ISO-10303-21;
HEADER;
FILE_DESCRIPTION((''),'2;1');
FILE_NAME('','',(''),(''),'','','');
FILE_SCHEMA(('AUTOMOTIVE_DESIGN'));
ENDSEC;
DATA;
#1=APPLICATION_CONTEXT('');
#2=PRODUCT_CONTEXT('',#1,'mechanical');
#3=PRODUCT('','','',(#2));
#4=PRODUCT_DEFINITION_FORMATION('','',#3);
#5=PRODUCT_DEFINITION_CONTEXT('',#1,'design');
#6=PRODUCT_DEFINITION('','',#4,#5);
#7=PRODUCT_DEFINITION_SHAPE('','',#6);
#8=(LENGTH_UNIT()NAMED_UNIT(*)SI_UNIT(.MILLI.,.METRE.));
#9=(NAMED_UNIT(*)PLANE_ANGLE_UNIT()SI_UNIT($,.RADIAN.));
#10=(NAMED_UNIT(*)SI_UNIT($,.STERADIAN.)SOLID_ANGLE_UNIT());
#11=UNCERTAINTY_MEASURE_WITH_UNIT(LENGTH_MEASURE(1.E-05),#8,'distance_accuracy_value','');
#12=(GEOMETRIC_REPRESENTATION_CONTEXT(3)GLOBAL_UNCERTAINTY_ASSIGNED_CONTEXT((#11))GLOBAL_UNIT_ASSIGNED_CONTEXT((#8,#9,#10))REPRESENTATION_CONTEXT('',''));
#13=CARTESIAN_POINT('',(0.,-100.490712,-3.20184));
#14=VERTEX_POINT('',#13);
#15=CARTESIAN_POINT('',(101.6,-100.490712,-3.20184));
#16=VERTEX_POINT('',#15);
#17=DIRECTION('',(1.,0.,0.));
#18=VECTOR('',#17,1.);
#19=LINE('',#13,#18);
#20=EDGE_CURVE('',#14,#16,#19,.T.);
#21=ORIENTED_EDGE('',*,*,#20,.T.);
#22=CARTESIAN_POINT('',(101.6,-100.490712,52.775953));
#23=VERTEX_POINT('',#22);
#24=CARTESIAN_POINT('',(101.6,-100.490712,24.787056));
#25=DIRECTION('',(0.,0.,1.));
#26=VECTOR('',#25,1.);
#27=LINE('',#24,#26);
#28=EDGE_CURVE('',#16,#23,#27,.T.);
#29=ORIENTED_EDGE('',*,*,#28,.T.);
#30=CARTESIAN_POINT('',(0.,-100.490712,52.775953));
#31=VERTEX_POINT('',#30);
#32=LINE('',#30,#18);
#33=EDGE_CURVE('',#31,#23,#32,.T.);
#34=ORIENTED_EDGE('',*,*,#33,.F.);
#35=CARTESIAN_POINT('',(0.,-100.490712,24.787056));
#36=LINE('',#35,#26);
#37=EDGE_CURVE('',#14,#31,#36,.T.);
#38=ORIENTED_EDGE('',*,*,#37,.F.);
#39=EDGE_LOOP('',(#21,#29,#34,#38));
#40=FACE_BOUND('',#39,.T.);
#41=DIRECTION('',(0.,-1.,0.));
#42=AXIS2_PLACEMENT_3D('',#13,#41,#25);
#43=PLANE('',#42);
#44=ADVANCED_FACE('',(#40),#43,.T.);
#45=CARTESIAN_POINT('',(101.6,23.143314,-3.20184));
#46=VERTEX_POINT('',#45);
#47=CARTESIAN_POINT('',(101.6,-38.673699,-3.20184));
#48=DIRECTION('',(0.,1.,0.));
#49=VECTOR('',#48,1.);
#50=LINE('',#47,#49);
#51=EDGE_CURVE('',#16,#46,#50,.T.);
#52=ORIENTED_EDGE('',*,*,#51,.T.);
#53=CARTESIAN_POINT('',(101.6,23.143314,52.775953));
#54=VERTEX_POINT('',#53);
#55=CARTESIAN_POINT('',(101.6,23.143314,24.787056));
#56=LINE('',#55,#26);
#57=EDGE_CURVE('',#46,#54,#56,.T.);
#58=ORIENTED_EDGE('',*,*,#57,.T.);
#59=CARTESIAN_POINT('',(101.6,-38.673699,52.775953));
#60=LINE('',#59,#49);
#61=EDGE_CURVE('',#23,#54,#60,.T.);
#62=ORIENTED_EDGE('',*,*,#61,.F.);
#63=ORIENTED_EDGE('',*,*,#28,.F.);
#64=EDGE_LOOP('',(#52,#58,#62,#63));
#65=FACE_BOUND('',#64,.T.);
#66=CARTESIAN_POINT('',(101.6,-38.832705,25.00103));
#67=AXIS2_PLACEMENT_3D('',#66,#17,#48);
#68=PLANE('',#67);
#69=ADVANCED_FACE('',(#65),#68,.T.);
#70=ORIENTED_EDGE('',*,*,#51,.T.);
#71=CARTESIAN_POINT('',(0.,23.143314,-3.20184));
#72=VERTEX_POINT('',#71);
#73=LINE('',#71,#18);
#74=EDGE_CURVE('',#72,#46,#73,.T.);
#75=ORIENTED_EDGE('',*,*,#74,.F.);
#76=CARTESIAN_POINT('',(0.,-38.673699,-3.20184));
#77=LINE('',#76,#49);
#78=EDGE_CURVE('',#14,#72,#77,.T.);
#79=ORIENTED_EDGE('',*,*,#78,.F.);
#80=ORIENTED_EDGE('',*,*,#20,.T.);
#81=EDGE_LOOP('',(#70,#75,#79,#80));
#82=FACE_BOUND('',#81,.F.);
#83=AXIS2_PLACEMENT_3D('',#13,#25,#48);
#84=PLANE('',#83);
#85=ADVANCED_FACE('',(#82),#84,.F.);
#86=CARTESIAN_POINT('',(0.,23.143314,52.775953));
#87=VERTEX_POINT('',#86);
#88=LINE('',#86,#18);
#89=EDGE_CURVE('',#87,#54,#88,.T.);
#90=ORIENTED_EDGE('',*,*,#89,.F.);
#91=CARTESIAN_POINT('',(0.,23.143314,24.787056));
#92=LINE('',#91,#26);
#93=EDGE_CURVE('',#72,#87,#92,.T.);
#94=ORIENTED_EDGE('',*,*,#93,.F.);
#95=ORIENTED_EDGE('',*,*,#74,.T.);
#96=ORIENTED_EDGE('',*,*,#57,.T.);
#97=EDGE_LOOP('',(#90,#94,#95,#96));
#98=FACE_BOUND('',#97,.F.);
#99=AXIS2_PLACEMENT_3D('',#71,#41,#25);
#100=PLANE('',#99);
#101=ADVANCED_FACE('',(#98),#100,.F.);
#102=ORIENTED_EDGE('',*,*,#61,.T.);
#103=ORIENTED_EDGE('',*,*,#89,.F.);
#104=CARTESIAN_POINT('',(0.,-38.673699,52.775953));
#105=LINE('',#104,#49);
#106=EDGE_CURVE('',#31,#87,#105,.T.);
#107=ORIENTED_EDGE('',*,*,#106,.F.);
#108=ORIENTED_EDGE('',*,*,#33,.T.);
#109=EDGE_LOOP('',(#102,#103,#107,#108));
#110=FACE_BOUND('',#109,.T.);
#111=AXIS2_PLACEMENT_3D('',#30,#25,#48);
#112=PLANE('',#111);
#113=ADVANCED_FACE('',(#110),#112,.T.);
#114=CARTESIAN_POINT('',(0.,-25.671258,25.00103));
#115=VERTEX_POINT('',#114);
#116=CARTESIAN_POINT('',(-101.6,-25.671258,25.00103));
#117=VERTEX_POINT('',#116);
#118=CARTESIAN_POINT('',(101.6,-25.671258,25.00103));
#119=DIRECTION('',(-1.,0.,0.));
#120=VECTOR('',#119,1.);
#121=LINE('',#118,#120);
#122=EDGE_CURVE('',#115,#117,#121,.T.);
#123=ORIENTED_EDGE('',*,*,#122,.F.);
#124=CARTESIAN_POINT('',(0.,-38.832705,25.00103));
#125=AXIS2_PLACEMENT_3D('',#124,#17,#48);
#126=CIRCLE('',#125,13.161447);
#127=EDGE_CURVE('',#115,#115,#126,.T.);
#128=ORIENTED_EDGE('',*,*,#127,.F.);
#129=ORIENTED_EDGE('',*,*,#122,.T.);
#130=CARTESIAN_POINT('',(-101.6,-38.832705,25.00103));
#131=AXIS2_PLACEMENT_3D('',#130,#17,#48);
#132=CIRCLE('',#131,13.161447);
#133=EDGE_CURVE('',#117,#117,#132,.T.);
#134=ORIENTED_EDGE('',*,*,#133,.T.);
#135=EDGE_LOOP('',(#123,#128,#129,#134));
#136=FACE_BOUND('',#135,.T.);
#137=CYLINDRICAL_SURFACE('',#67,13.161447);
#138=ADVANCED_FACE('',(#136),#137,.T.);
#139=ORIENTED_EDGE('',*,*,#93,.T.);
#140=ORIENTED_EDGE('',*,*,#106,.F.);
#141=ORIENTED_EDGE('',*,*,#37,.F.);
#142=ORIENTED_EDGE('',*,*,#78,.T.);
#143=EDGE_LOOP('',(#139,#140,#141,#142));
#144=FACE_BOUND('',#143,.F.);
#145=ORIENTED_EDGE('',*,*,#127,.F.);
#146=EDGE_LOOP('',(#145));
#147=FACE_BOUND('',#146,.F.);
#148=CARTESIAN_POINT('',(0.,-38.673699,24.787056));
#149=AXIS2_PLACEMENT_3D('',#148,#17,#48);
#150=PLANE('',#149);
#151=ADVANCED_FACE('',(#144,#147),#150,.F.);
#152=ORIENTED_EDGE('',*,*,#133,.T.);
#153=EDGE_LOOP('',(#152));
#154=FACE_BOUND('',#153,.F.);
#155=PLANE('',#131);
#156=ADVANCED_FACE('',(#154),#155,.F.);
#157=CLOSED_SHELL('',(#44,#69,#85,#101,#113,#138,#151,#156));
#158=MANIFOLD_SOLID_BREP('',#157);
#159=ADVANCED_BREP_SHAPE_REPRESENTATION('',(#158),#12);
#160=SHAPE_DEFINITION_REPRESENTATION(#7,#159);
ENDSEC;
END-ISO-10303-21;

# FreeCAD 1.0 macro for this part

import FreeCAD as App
import Part
import Sketcher
Q = App.Units.Quantity

doc = App.newDocument("Part")
body = doc.addObject("PartDesign::Body", "Body")

# Sketch on YZ plane
sketch1 = body.newObject("Sketcher::SketchObject", "Sketch")
sketch1.AttachmentSupport = (doc.getObject("YZ_Plane"), [""])
sketch1.MapMode = "FlatFace"
sketch1.addGeometry([
    Part.LineSegment(App.Vector(-100.490712, 52.775953, 0), App.Vector(-100.490712, -3.20184, 0)),
    Part.LineSegment(App.Vector(-100.490712, -3.20184, 0), App.Vector(23.143314, -3.20184, 0)),
    Part.LineSegment(App.Vector(23.143314, -3.20184, 0), App.Vector(23.143314, 52.775953, 0)),
    Part.LineSegment(App.Vector(23.143314, 52.775953, 0), App.Vector(-100.490712, 52.775953, 0)),
], False)
sketch1.addConstraint([
    Sketcher.Constraint("Coincident", 0, 2, 1, 1),
    Sketcher.Constraint("Coincident", 1, 2, 2, 1),
    Sketcher.Constraint("Coincident", 2, 2, 3, 1),
    Sketcher.Constraint("Coincident", 3, 2, 0, 1),
    Sketcher.Constraint("Vertical", 0),
    Sketcher.Constraint("Horizontal", 1),
    Sketcher.Constraint("Vertical", 2),
    Sketcher.Constraint("Horizontal", 3),
    Sketcher.Constraint("DistanceX", 1, 1, 1, 2, Q("123.634026 mm")),
    Sketcher.Constraint("DistanceY", 0, 2, 0, 1, Q("55.977793 mm")),
    Sketcher.Constraint("DistanceX", 0, 2, -1, 1, Q("100.490712 mm")),
    Sketcher.Constraint("DistanceY", 0, 2, -1, 1, Q("3.20184 mm")),
])
pad1 = body.newObject("PartDesign::Pad", "Pad")
pad1.Profile = sketch1
pad1.Length = Q("4 in")

# Sketch on YZ plane
sketch2 = body.newObject("Sketcher::SketchObject", "Sketch001")
sketch2.AttachmentSupport = (doc.getObject("YZ_Plane"), [""])
sketch2.MapMode = "FlatFace"
sketch2.AttachmentOffset = App.Placement(App.Vector(0, 0, 4 * 25.4), App.Rotation())
sketch2.addGeometry(Part.Circle(App.Vector(-38.832705, 25.00103, 0), App.Vector(0, 0, 1), 13.161447), False)
sketch2.addConstraint([
    Sketcher.Constraint("Diameter", 0, Q("26.322894 mm")),
    Sketcher.Constraint("DistanceY", -1, 1, 0, 3, Q("25.00103 mm")),
    Sketcher.Constraint("DistanceX", 0, 3, -1, 1, Q("38.832705 mm")),
])
pad2 = body.newObject("PartDesign::Pad", "Pad001")
pad2.Profile = sketch2
pad2.Length = Q("8 in")
pad2.Reversed = True
pad3 = body.newObject("PartDesign::Pad", "Pad002")
pad3.Profile = sketch2
pad3.Length = Q("1 in")
pad3.Reversed = True

doc.recompute()
